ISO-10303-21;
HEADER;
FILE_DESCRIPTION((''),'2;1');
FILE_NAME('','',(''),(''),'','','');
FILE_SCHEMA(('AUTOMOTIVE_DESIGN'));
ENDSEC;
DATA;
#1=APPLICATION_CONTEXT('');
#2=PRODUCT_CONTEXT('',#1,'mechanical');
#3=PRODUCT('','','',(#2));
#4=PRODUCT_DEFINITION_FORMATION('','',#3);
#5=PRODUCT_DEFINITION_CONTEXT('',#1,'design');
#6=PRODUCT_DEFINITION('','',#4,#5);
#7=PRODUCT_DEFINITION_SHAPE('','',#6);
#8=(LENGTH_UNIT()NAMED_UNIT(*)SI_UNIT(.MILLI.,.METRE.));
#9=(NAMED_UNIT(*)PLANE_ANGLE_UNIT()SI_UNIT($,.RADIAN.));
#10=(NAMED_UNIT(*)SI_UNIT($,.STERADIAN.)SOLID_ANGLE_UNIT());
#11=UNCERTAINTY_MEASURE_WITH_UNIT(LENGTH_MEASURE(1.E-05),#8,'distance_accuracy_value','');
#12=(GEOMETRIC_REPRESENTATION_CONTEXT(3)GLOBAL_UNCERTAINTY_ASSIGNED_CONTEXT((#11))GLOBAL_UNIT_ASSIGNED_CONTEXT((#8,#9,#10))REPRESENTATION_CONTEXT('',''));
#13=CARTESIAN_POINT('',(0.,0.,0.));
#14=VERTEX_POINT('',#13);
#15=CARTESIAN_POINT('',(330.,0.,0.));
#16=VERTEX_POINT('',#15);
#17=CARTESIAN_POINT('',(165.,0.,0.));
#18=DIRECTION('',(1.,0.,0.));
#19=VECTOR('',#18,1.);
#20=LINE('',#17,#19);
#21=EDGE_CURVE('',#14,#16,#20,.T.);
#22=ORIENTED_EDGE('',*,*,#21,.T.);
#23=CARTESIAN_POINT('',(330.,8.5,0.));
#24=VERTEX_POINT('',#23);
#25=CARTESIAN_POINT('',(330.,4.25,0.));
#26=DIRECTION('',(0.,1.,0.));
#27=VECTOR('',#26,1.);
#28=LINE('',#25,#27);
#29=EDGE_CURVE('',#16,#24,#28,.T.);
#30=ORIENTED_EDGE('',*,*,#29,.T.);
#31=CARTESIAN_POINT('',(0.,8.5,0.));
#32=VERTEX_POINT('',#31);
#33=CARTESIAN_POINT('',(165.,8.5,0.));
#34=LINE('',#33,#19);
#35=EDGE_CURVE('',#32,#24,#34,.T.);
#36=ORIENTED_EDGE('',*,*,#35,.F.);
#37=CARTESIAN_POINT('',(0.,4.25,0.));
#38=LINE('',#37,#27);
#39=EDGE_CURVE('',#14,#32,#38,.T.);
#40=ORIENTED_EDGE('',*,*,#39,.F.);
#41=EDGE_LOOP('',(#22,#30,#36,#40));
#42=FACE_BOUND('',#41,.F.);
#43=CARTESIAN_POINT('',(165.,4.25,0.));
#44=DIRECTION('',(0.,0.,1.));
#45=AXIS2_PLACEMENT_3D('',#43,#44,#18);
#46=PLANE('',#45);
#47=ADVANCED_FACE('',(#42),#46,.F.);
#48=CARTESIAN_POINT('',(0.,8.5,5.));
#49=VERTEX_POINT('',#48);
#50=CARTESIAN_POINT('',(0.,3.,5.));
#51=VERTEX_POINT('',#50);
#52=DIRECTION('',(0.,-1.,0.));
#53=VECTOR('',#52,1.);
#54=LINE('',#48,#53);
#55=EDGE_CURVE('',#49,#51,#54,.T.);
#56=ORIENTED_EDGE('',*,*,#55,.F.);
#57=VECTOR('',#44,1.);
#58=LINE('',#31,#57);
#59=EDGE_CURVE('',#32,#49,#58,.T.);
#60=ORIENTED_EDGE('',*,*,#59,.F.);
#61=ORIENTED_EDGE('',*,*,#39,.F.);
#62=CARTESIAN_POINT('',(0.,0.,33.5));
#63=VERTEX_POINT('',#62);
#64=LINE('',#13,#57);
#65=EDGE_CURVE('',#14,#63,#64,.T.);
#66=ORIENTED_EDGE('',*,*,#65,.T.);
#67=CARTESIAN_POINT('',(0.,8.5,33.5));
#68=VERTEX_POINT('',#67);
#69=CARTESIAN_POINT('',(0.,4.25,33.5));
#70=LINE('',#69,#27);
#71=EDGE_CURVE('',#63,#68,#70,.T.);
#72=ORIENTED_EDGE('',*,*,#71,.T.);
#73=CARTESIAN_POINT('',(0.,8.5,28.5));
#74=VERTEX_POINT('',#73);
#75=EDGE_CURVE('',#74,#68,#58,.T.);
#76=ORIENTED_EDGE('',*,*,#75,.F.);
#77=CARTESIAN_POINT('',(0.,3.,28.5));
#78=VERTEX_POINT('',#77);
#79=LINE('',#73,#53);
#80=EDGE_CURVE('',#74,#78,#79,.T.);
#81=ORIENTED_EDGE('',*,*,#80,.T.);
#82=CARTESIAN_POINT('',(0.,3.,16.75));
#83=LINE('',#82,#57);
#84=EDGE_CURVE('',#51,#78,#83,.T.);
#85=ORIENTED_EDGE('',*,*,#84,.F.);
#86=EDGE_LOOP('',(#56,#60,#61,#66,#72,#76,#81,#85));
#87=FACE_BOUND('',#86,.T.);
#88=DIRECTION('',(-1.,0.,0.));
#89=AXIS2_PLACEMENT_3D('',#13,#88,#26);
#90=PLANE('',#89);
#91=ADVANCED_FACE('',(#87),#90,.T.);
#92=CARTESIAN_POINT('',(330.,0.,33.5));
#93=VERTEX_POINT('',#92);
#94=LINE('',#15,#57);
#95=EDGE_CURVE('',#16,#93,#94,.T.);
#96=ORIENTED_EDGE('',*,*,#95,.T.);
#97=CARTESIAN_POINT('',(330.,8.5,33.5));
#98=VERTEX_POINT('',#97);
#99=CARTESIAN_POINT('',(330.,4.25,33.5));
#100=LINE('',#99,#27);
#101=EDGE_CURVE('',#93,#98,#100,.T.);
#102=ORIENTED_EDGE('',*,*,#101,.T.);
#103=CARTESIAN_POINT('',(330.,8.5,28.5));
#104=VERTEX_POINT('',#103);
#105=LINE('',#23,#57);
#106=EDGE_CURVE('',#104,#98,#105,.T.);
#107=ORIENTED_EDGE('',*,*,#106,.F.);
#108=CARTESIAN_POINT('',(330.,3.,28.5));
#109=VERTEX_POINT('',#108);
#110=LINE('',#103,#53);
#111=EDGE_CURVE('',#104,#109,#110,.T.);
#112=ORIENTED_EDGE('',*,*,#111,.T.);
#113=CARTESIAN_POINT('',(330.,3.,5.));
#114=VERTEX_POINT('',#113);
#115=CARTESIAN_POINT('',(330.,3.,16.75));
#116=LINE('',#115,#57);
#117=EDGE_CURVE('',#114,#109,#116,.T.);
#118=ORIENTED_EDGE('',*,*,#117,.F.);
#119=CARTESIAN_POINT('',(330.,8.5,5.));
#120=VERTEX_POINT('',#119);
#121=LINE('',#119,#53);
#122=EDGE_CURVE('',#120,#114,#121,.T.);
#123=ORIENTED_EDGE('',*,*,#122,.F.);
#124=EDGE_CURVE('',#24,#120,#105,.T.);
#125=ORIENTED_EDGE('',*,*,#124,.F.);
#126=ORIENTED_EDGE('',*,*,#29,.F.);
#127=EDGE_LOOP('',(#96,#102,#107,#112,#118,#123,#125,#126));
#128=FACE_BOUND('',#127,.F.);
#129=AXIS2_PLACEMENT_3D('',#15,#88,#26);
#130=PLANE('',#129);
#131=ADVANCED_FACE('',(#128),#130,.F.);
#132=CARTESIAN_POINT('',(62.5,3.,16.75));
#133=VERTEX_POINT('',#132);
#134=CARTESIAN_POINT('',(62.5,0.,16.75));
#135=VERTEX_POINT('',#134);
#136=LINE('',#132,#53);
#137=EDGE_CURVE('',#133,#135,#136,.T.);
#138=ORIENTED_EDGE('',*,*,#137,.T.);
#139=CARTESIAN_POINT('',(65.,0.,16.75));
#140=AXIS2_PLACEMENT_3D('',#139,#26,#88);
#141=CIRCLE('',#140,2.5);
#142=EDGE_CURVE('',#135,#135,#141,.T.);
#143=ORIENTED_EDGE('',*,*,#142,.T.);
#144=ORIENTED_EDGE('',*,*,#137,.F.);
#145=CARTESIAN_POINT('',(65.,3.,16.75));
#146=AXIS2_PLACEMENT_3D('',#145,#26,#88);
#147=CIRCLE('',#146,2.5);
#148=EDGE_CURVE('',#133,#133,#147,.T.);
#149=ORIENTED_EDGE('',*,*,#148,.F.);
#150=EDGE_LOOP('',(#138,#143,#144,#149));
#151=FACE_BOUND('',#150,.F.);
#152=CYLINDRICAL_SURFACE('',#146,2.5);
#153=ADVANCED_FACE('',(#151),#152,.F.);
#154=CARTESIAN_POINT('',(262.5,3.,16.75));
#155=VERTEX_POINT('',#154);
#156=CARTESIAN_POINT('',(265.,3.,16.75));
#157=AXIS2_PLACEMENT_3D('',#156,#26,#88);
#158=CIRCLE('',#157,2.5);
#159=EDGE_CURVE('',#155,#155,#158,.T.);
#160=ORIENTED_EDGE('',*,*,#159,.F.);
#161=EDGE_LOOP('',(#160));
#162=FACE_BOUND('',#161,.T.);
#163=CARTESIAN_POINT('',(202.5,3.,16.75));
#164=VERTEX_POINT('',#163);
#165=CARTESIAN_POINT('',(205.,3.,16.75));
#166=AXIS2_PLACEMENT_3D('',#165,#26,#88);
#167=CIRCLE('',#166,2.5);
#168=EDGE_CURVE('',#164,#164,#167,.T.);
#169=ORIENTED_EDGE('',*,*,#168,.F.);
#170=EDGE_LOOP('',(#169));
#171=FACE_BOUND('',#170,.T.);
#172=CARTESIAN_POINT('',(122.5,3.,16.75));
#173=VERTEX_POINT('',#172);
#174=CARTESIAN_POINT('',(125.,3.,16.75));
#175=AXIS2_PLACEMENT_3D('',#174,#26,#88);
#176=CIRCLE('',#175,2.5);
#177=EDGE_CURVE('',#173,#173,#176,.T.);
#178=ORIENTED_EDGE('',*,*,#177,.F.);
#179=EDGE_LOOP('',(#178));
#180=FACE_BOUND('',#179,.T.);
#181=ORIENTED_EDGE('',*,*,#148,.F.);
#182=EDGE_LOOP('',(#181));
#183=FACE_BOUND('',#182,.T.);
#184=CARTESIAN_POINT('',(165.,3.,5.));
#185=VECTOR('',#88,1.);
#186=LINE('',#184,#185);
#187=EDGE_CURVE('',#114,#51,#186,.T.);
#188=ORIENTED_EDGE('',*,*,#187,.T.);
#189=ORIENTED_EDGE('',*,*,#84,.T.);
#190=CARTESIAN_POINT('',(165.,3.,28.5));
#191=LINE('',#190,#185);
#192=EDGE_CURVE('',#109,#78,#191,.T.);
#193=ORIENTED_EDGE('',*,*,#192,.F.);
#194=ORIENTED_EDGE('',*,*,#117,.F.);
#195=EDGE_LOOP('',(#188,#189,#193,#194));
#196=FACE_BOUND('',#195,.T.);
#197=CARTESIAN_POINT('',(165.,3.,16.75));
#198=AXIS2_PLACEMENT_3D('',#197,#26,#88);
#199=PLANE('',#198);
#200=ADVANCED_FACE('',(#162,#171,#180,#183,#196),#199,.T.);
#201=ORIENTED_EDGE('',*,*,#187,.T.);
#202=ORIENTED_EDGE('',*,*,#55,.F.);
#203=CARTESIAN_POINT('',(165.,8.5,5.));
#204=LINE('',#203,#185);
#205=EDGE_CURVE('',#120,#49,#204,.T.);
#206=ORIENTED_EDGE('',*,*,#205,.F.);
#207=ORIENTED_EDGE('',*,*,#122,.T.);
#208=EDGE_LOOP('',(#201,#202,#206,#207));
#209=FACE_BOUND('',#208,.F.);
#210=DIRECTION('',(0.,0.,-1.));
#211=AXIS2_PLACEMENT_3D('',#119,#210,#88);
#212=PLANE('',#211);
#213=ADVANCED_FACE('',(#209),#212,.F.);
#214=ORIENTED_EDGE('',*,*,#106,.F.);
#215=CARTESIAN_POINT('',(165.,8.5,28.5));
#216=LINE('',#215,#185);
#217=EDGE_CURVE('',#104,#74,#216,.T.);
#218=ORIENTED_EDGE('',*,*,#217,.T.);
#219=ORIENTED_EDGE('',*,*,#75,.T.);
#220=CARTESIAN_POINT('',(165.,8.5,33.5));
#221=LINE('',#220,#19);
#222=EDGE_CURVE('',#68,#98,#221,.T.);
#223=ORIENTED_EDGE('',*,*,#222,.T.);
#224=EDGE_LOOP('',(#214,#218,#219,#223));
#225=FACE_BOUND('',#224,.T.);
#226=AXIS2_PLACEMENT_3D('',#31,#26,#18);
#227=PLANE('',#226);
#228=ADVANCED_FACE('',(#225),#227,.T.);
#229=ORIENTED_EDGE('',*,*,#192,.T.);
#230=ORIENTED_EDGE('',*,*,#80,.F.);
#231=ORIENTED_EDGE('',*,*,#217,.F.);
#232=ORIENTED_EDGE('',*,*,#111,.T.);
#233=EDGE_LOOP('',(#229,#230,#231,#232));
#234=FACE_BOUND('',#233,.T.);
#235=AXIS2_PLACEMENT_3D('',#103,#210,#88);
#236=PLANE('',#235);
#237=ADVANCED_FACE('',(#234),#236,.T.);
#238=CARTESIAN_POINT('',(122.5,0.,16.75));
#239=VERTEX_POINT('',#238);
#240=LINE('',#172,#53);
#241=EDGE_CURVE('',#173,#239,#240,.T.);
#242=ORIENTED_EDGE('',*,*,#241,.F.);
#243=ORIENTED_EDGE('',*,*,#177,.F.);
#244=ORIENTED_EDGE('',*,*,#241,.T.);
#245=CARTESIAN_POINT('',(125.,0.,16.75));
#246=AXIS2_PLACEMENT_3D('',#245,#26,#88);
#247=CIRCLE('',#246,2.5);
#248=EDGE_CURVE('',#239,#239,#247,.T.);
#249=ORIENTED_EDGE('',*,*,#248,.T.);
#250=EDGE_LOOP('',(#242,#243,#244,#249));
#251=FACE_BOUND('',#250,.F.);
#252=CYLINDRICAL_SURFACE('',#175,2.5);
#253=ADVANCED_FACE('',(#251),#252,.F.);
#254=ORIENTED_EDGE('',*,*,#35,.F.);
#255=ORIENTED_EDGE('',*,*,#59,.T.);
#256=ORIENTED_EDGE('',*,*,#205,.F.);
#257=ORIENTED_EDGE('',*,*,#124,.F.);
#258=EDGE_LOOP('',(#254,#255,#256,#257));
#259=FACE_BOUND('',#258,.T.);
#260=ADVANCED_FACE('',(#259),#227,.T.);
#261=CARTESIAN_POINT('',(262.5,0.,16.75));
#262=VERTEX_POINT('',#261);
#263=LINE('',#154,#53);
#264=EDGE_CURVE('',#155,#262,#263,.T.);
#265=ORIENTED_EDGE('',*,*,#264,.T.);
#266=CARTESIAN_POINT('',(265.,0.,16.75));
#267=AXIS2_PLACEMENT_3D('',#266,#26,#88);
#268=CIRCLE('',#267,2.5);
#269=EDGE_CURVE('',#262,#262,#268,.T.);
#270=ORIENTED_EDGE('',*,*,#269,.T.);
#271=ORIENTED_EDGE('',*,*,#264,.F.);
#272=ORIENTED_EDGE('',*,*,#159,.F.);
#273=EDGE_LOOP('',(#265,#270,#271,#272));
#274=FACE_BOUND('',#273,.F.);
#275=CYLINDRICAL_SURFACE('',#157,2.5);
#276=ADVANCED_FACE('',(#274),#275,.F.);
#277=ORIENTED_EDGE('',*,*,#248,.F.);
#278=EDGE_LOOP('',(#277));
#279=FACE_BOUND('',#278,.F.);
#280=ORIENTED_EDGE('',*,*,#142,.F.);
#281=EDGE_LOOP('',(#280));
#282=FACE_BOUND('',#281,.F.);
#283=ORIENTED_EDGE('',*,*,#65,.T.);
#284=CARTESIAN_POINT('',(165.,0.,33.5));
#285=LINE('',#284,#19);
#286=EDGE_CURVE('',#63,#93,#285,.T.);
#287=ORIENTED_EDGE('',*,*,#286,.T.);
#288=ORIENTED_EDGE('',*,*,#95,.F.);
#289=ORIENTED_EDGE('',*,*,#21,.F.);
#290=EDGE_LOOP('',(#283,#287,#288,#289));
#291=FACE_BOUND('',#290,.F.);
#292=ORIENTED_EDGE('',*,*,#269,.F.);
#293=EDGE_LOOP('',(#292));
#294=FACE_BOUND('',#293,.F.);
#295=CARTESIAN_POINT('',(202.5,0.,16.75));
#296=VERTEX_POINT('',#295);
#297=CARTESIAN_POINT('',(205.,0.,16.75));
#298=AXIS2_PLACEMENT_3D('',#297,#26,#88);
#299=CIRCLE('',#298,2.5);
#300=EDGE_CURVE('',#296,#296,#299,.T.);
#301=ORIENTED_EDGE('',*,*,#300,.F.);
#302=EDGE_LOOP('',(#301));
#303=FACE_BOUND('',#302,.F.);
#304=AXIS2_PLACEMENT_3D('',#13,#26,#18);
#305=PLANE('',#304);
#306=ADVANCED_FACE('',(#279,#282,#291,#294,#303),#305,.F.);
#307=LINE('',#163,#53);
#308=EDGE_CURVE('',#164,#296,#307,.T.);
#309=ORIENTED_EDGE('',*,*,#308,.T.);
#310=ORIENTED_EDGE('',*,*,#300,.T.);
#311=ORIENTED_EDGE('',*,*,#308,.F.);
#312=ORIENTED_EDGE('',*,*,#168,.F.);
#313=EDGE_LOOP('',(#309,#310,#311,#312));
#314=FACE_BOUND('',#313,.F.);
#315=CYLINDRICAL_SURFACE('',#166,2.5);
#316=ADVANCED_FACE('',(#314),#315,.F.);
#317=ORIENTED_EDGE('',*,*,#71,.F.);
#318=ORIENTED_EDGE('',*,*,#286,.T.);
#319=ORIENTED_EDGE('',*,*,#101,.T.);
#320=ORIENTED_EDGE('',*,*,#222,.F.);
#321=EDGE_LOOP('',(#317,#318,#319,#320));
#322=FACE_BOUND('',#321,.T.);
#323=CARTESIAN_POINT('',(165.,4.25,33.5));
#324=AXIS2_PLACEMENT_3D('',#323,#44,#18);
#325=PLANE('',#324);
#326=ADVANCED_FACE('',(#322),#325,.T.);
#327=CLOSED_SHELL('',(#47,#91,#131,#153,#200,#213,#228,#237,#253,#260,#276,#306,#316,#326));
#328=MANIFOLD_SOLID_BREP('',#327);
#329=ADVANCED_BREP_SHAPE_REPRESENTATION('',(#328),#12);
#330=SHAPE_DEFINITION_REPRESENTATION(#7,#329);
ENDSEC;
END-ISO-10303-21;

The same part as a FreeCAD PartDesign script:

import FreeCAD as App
import Part
import Sketcher


def add_polygon(sketch, points):
    """Adds a closed chain of lines whose ends are joined by coincident constraints."""
    first, n = sketch.GeometryCount, len(points)
    for a, b in zip(points, points[1:] + points[:1]):
        sketch.addGeometry(Part.LineSegment(App.Vector(*a, 0), App.Vector(*b, 0)), False)
    for i in range(n):
        sketch.addConstraint(Sketcher.Constraint("Coincident", first + i, 2, first + (i + 1) % n, 1))

doc = App.newDocument("Part")
body = doc.addObject("PartDesign::Body", "Body")

sketch1 = doc.addObject("Sketcher::SketchObject", "Sketch")
body.addObject(sketch1)
sketch1.AttachmentSupport = (doc.XY_Plane, [""])
sketch1.MapMode = "FlatFace"
add_polygon(sketch1, [(0, 8), (0, 0), (330, 0), (330, 8)])
sketch1.addConstraint(Sketcher.Constraint("Vertical", 0))
sketch1.addConstraint(Sketcher.Constraint("Horizontal", 1))
sketch1.addConstraint(Sketcher.Constraint("Vertical", 2))
sketch1.addConstraint(Sketcher.Constraint("Horizontal", 3))
sketch1.addConstraint(Sketcher.Constraint("Coincident", 0, 2, -1, 1))
sketch1.addConstraint(Sketcher.Constraint("DistanceX", 1, 1, 1, 2, 330.0))
sketch1.addConstraint(Sketcher.Constraint("DistanceY", 0, 2, 0, 1, 8.5))
pad1 = doc.addObject("PartDesign::Pad", "Pad")
body.addObject(pad1)
pad1.Profile = sketch1
pad1.Length = 33.5

sketch2 = doc.addObject("Sketcher::SketchObject", "Sketch001")
body.addObject(sketch2)
sketch2.AttachmentSupport = (doc.XZ_Plane, [""])
sketch2.MapMode = "FlatFace"
sketch2.AttachmentOffset = App.Placement(App.Vector(0, 0, -8.5), App.Rotation())
add_polygon(sketch2, [(330, 28), (330, 5), (0, 5), (0, 28)])
sketch2.addConstraint(Sketcher.Constraint("Vertical", 0))
sketch2.addConstraint(Sketcher.Constraint("Horizontal", 1))
sketch2.addConstraint(Sketcher.Constraint("Vertical", 2))
sketch2.addConstraint(Sketcher.Constraint("Horizontal", 3))
sketch2.addConstraint(Sketcher.Constraint("PointOnObject", 1, 2, -2))
sketch2.addConstraint(Sketcher.Constraint("DistanceX", 1, 2, 1, 1, 330.0))
sketch2.addConstraint(Sketcher.Constraint("DistanceY", 0, 2, 0, 1, 23.5))
sketch2.addConstraint(Sketcher.Constraint("DistanceY", -1, 1, 0, 2, 5.0))
pocket1 = doc.addObject("PartDesign::Pocket", "Pocket")
body.addObject(pocket1)
pocket1.Profile = sketch2
pocket1.Length = 5.5
pocket1.Reversed = True

sketch3 = doc.addObject("Sketcher::SketchObject", "Sketch002")
body.addObject(sketch3)
sketch3.AttachmentSupport = (doc.XZ_Plane, [""])
sketch3.MapMode = "FlatFace"
sketch3.AttachmentOffset = App.Placement(App.Vector(0, 0, -3), App.Rotation())
sketch3.addGeometry(Part.Circle(App.Vector(265, 16.8, 0), App.Vector(0, 0, 1), 2.5), False)
sketch3.addGeometry(Part.Circle(App.Vector(205, 16.8, 0), App.Vector(0, 0, 1), 2.5), False)
sketch3.addGeometry(Part.Circle(App.Vector(125, 16.8, 0), App.Vector(0, 0, 1), 2.5), False)
sketch3.addGeometry(Part.Circle(App.Vector(65, 16.8, 0), App.Vector(0, 0, 1), 2.5), False)
sketch3.addConstraint(Sketcher.Constraint("Equal", 0, 1))
sketch3.addConstraint(Sketcher.Constraint("Equal", 1, 2))
sketch3.addConstraint(Sketcher.Constraint("Equal", 2, 3))
sketch3.addConstraint(Sketcher.Constraint("Horizontal", 0, 3, 1, 3))
sketch3.addConstraint(Sketcher.Constraint("Horizontal", 1, 3, 2, 3))
sketch3.addConstraint(Sketcher.Constraint("Horizontal", 2, 3, 3, 3))
sketch3.addConstraint(Sketcher.Constraint("Diameter", 0, 5.0))
sketch3.addConstraint(Sketcher.Constraint("DistanceX", -1, 1, 0, 3, 265.0))
sketch3.addConstraint(Sketcher.Constraint("DistanceX", -1, 1, 1, 3, 205.0))
sketch3.addConstraint(Sketcher.Constraint("DistanceX", -1, 1, 2, 3, 125.0))
sketch3.addConstraint(Sketcher.Constraint("DistanceX", -1, 1, 3, 3, 65.0))
sketch3.addConstraint(Sketcher.Constraint("DistanceY", -1, 1, 0, 3, 16.75))
pocket2 = doc.addObject("PartDesign::Pocket", "Pocket001")
body.addObject(pocket2)
pocket2.Profile = sketch3
pocket2.Type = "ThroughAll"
pocket2.Reversed = True

doc.recompute()
